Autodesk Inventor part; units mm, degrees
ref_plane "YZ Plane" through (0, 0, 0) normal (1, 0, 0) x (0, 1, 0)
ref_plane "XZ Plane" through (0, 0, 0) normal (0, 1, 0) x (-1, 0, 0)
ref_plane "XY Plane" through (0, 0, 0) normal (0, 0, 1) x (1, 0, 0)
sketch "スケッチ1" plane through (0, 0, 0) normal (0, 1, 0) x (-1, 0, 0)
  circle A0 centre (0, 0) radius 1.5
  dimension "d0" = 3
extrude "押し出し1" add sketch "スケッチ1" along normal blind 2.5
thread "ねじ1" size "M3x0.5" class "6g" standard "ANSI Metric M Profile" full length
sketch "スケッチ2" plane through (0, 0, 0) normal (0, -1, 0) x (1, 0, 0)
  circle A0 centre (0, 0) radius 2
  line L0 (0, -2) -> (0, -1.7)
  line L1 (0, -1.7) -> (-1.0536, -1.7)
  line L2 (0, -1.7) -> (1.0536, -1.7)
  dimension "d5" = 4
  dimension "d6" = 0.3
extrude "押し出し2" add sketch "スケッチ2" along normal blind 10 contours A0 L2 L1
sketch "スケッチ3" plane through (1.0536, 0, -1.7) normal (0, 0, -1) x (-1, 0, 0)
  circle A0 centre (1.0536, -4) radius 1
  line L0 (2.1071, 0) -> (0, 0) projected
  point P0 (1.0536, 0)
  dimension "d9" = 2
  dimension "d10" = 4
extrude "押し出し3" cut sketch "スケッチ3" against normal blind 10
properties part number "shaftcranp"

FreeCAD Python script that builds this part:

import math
import FreeCAD as App
import Part
import Sketcher
from FreeCAD import Vector

doc = App.newDocument("Part")
body = doc.addObject("PartDesign::Body", "Body")

# Sketch on XZ plane
sketch1 = doc.addObject("Sketcher::SketchObject", "Sketch")
body.addObject(sketch1)
sketch1.AttachmentSupport = (doc.XZ_Plane, [""])
sketch1.MapMode = "FlatFace"
sketch1.addGeometry(Part.Circle(Vector(0, 0, 0), Vector(0, 0, 1), 1.5), False)
sketch1.addConstraint([
    Sketcher.Constraint("Coincident", 0, 3, -1, 1),
    Sketcher.Constraint("Diameter", 0, 3.0),
])
pad1 = doc.addObject("PartDesign::Pad", "Pad")
body.addObject(pad1)
pad1.Profile = sketch1
pad1.Length = 2.5
pad1.Reversed = True

# Sketch on XZ plane
sketch2 = doc.addObject("Sketcher::SketchObject", "Sketch001")
body.addObject(sketch2)
sketch2.AttachmentSupport = (doc.XZ_Plane, [""])
sketch2.MapMode = "FlatFace"
sketch2.addGeometry([
    Part.ArcOfCircle(Part.Circle(Vector(0, 0, 0), Vector(0, 0, 1), 2), math.radians(-58), math.radians(238)),
    Part.LineSegment(Vector(1.1, -1.7, 0), Vector(-1.1, -1.7, 0)),
], False)
sketch2.addConstraint([
    Sketcher.Constraint("Coincident", 0, 1, 1, 1),
    Sketcher.Constraint("Coincident", 1, 2, 0, 2),
    Sketcher.Constraint("Horizontal", 1),
    Sketcher.Constraint("Coincident", 0, 3, -1, 1),
    Sketcher.Constraint("Radius", 0, 2.0),
    Sketcher.Constraint("DistanceY", 0, 1, -1, 1, 1.7),
])
pad2 = doc.addObject("PartDesign::Pad", "Pad001")
body.addObject(pad2)
pad2.Profile = sketch2
pad2.Length = 10

# Sketch on XY plane
sketch3 = doc.addObject("Sketcher::SketchObject", "Sketch002")
body.addObject(sketch3)
sketch3.AttachmentSupport = (doc.XY_Plane, [""])
sketch3.MapMode = "FlatFace"
sketch3.AttachmentOffset = App.Placement(Vector(0, 0, -1.7), App.Rotation())
sketch3.addGeometry(Part.Circle(Vector(0, -4, 0), Vector(0, 0, 1), 1), False)
sketch3.addConstraint([
    Sketcher.Constraint("PointOnObject", 0, 3, -2),
    Sketcher.Constraint("Diameter", 0, 2.0),
    Sketcher.Constraint("DistanceY", 0, 3, -1, 1, 4.0),
])
pocket1 = doc.addObject("PartDesign::Pocket", "Pocket")
body.addObject(pocket1)
pocket1.Profile = sketch3
pocket1.Length = 10
pocket1.Reversed = True

doc.recompute()
